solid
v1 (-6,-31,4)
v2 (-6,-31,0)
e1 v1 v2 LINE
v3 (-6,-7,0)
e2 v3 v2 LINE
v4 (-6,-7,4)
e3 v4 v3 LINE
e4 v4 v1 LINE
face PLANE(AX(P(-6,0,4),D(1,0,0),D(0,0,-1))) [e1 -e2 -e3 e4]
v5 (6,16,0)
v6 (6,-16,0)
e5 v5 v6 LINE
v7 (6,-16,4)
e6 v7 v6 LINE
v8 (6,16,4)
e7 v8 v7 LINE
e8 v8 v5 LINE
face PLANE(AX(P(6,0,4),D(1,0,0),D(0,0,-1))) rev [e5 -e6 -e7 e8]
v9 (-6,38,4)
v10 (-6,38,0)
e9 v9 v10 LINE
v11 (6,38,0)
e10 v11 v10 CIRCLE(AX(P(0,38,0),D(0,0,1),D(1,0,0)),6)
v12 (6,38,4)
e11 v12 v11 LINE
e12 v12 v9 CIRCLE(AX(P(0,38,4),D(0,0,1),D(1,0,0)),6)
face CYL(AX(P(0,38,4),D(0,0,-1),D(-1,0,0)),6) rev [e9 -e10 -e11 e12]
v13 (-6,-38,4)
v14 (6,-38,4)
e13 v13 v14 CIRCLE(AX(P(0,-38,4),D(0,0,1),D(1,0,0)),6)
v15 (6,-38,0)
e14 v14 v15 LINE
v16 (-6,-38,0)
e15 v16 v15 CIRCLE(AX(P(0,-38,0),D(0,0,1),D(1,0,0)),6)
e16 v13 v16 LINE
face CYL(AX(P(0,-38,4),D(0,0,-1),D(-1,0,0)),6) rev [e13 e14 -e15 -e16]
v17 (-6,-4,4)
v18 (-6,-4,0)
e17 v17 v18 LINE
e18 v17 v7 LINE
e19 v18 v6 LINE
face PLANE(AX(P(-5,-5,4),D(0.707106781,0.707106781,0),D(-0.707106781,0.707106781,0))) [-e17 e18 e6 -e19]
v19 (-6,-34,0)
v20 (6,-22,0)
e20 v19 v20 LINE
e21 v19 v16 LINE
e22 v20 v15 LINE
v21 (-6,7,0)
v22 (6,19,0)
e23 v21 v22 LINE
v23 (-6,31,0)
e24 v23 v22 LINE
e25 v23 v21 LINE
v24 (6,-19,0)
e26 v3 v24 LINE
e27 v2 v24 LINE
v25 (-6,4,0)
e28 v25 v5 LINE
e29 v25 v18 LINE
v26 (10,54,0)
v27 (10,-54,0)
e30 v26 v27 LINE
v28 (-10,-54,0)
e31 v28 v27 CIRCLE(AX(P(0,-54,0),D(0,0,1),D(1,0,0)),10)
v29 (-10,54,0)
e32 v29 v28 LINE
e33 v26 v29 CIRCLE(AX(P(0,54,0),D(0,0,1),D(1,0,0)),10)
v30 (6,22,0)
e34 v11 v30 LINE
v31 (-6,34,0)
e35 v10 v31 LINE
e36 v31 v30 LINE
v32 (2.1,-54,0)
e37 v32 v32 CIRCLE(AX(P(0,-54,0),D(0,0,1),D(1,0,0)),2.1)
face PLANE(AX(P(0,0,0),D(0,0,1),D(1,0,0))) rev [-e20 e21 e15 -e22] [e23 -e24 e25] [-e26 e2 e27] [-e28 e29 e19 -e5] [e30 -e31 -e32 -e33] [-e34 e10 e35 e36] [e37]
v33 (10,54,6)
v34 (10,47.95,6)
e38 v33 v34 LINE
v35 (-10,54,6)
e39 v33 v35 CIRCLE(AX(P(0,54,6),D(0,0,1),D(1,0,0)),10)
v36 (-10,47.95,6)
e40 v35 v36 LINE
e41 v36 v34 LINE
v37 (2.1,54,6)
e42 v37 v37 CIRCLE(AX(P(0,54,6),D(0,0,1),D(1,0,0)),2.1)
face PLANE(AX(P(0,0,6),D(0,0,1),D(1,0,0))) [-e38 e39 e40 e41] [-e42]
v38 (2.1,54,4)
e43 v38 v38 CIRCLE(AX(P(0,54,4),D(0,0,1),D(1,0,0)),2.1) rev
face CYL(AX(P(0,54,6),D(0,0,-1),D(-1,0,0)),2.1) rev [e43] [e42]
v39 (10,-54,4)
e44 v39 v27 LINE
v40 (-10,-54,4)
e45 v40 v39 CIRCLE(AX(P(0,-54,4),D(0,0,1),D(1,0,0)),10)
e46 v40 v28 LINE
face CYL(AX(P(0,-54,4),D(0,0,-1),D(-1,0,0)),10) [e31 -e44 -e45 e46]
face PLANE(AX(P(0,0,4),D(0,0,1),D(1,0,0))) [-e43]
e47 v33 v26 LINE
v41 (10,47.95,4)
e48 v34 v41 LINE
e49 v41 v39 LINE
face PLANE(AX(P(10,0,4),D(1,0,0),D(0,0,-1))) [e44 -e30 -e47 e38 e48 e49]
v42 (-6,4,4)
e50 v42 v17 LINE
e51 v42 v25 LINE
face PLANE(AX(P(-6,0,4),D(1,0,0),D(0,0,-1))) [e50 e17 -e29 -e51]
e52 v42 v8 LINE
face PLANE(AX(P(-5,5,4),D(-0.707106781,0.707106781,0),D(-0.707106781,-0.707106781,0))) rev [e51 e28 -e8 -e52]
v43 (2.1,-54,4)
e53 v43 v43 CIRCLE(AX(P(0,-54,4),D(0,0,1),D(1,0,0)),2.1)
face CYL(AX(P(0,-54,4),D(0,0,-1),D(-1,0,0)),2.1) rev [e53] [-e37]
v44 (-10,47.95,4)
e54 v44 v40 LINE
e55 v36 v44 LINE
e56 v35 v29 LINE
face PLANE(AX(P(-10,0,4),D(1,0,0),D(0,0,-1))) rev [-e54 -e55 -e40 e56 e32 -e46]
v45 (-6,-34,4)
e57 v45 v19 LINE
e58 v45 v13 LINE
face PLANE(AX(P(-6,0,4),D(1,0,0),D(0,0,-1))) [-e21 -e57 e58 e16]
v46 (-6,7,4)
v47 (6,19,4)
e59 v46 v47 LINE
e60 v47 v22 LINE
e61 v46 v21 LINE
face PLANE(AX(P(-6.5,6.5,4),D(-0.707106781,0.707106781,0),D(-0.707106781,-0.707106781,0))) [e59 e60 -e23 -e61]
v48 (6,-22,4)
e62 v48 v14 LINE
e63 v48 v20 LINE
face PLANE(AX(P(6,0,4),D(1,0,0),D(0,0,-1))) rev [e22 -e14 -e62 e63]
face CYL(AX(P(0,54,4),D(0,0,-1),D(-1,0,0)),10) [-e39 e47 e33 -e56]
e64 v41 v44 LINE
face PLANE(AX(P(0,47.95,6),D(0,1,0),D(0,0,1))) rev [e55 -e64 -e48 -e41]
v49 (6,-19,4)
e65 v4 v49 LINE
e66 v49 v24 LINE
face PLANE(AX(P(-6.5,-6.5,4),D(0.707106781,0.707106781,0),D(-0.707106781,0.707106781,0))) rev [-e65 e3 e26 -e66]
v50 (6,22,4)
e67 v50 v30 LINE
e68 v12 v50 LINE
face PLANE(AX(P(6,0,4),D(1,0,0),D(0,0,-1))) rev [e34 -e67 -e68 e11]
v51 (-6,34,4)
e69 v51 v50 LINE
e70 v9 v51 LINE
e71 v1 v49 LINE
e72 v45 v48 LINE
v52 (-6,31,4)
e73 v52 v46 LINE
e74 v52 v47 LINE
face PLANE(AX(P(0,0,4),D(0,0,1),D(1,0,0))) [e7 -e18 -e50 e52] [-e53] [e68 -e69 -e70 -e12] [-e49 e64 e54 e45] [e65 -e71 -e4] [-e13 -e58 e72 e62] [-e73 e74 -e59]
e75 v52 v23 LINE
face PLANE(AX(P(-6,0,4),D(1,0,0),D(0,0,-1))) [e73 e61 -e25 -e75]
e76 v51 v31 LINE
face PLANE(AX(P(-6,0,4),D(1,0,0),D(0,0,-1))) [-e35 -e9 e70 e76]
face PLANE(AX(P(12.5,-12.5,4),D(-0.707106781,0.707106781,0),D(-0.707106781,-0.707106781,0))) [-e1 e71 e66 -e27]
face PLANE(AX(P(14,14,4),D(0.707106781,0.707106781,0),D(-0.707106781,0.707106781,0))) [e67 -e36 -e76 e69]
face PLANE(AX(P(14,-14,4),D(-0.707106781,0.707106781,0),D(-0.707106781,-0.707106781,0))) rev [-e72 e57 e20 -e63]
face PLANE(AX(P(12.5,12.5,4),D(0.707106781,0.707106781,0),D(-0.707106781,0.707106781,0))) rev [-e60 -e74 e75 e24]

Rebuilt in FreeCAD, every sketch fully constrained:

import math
import FreeCAD as App
import Part
import Sketcher
from FreeCAD import Vector
Q = App.Units.Quantity

doc = App.newDocument("Part")
body = doc.addObject("PartDesign::Body", "Body")

# Sketch on XY plane
sketch1 = doc.addObject("Sketcher::SketchObject", "Sketch")
body.addObject(sketch1)
sketch1.AttachmentSupport = (doc.XY_Plane, [""])
sketch1.MapMode = "FlatFace"
sketch1.addGeometry([
    Part.ArcOfCircle(Part.Circle(Vector(0, 54, 0), Vector(0, 0, 1), 10), math.radians(0), math.radians(180)),  # 0
    Part.LineSegment(Vector(-10, 54, 0), Vector(-10, -54, 0)),  # 1
    Part.ArcOfCircle(Part.Circle(Vector(0, -54, 0), Vector(0, 0, 1), 10), math.radians(180), math.radians(360)),  # 2
    Part.LineSegment(Vector(10, -54, 0), Vector(10, 54, 0)),  # 3
    Part.Circle(Vector(0, -54, 0), Vector(0, 0, 1), 2.1),  # 4
    Part.LineSegment(Vector(-6, -34, 0), Vector(6, -22, 0)),  # 5
    Part.LineSegment(Vector(6, -22, 0), Vector(6, -38, 0)),  # 6
    Part.ArcOfCircle(Part.Circle(Vector(0, -38, 0), Vector(0, 0, 1), 6), math.radians(180), math.radians(360)),  # 7
    Part.LineSegment(Vector(-6, -38, 0), Vector(-6, -34, 0)),  # 8
    Part.LineSegment(Vector(6, -19, 0), Vector(-6, -31, 0)),  # 9
    Part.LineSegment(Vector(-6, -31, 0), Vector(-6, -7, 0)),  # 10
    Part.LineSegment(Vector(-6, -7, 0), Vector(6, -19, 0)),  # 11
    Part.LineSegment(Vector(-6, 4, 0), Vector(6, 16, 0)),  # 12
    Part.LineSegment(Vector(6, 16, 0), Vector(6, -16, 0)),  # 13
    Part.LineSegment(Vector(6, -16, 0), Vector(-6, -4, 0)),  # 14
    Part.LineSegment(Vector(-6, -4, 0), Vector(-6, 4, 0)),  # 15
    Part.LineSegment(Vector(6, 19, 0), Vector(-6, 7, 0)),  # 16
    Part.LineSegment(Vector(-6, 7, 0), Vector(-6, 31, 0)),  # 17
    Part.LineSegment(Vector(-6, 31, 0), Vector(6, 19, 0)),  # 18
    Part.ArcOfCircle(Part.Circle(Vector(0, 38, 0), Vector(0, 0, 1), 6), math.radians(0), math.radians(180)),  # 19
    Part.LineSegment(Vector(6, 38, 0), Vector(6, 22, 0)),  # 20
    Part.LineSegment(Vector(6, 22, 0), Vector(-6, 34, 0)),  # 21
    Part.LineSegment(Vector(-6, 34, 0), Vector(-6, 38, 0)),  # 22
], False)
sketch1.addConstraint([
    Sketcher.Constraint("Tangent", 0, 2, 1, 1),
    Sketcher.Constraint("Tangent", 1, 2, 2, 1),
    Sketcher.Constraint("Tangent", 2, 2, 3, 1),
    Sketcher.Constraint("Tangent", 3, 2, 0, 1),
    Sketcher.Constraint("Coincident", 5, 2, 6, 1),
    Sketcher.Constraint("Tangent", 6, 2, 7, 2),
    Sketcher.Constraint("Tangent", 7, 1, 8, 1),
    Sketcher.Constraint("Coincident", 8, 2, 5, 1),
    Sketcher.Constraint("Coincident", 9, 2, 10, 1),
    Sketcher.Constraint("Coincident", 10, 2, 11, 1),
    Sketcher.Constraint("Coincident", 11, 2, 9, 1),
    Sketcher.Constraint("Coincident", 12, 2, 13, 1),
    Sketcher.Constraint("Coincident", 13, 2, 14, 1),
    Sketcher.Constraint("Coincident", 14, 2, 15, 1),
    Sketcher.Constraint("Coincident", 15, 2, 12, 1),
    Sketcher.Constraint("Coincident", 16, 2, 17, 1),
    Sketcher.Constraint("Coincident", 17, 2, 18, 1),
    Sketcher.Constraint("Coincident", 18, 2, 16, 1),
    Sketcher.Constraint("Tangent", 19, 1, 20, 1),
    Sketcher.Constraint("Coincident", 20, 2, 21, 1),
    Sketcher.Constraint("Coincident", 21, 2, 22, 1),
    Sketcher.Constraint("Tangent", 22, 2, 19, 2),
    Sketcher.Constraint("Vertical", 1),
    Sketcher.Constraint("Vertical", 3),
    Sketcher.Constraint("Vertical", 6),
    Sketcher.Constraint("Vertical", 8),
    Sketcher.Constraint("Vertical", 10),
    Sketcher.Constraint("Vertical", 13),
    Sketcher.Constraint("Vertical", 15),
    Sketcher.Constraint("Vertical", 17),
    Sketcher.Constraint("Vertical", 20),
    Sketcher.Constraint("Vertical", 22),
    Sketcher.Constraint("Coincident", 4, 3, 2, 3),
    Sketcher.Constraint("Equal", 7, 19),
    Sketcher.Constraint("Symmetric", 0, 3, 2, 3, -1, 1),
    Sketcher.Constraint("Symmetric", 7, 3, 19, 3, -1, 1),
    Sketcher.Constraint("Symmetric", 10, 2, 16, 2, -1),
    Sketcher.Constraint("Symmetric", 11, 2, 18, 2, -1),
    Sketcher.Constraint("Symmetric", 5, 2, 20, 2, -1),
    Sketcher.Constraint("Parallel", 5, 9),
    Sketcher.Constraint("Perpendicular", 9, 11),
    Sketcher.Constraint("Perpendicular", 11, 12),
    Sketcher.Constraint("Perpendicular", 12, 14),
    Sketcher.Constraint("Perpendicular", 14, 16),
    Sketcher.Constraint("Perpendicular", 16, 18),
    Sketcher.Constraint("Parallel", 18, 21),
    Sketcher.Constraint("Vertical", 8, 2, 9, 2),
    Sketcher.Constraint("Vertical", 6, 2, 11, 2),
    Sketcher.Constraint("Vertical", 11, 2, 12, 2),
    Sketcher.Constraint("Vertical", 10, 2, 14, 2),
    Sketcher.Constraint("Radius", 0, Q("10 mm")),
    Sketcher.Constraint("Radius", 7, Q("6 mm")),
    Sketcher.Constraint("Diameter", 4, Q("4.2 mm")),
    Sketcher.Constraint("DistanceY", 1, 2, 1, 1, Q("108 mm")),
    Sketcher.Constraint("DistanceY", 6, 2, 6, 1, Q("16 mm")),
    Sketcher.Constraint("DistanceY", 13, 2, 13, 1, Q("32 mm")),
    Sketcher.Constraint("DistanceY", 7, 3, -1, 1, Q("38 mm")),
    Sketcher.Constraint("DistanceY", 9, 2, -1, 1, Q("31 mm")),
    Sketcher.Constraint("DistanceY", -1, 1, 12, 2, Q("16 mm")),
])
pad1 = doc.addObject("PartDesign::Pad", "Pad")
body.addObject(pad1)
pad1.Profile = sketch1
pad1.Length = 4

# Sketch on XY plane
sketch2 = doc.addObject("Sketcher::SketchObject", "Sketch001")
body.addObject(sketch2)
sketch2.AttachmentSupport = (doc.XY_Plane, [""])
sketch2.MapMode = "FlatFace"
sketch2.addGeometry([
    Part.LineSegment(Vector(10, 48, 0), Vector(10, 54, 0)),  # 0
    Part.ArcOfCircle(Part.Circle(Vector(0, 54, 0), Vector(0, 0, 1), 10), math.radians(0), math.radians(180)),  # 1
    Part.LineSegment(Vector(-10, 54, 0), Vector(-10, 48, 0)),  # 2
    Part.LineSegment(Vector(-10, 48, 0), Vector(10, 48, 0)),  # 3
    Part.Circle(Vector(0, 54, 0), Vector(0, 0, 1), 2.1),  # 4
], False)
sketch2.addConstraint([
    Sketcher.Constraint("Tangent", 0, 2, 1, 1),
    Sketcher.Constraint("Tangent", 1, 2, 2, 1),
    Sketcher.Constraint("Coincident", 2, 2, 3, 1),
    Sketcher.Constraint("Coincident", 3, 2, 0, 1),
    Sketcher.Constraint("Vertical", 0),
    Sketcher.Constraint("Vertical", 2),
    Sketcher.Constraint("Horizontal", 3),
    Sketcher.Constraint("Coincident", 4, 3, 1, 3),
    Sketcher.Constraint("PointOnObject", 1, 3, -2),
    Sketcher.Constraint("Radius", 1, Q("10 mm")),
    Sketcher.Constraint("Diameter", 4, Q("4.2 mm")),
    Sketcher.Constraint("DistanceY", -1, 1, 1, 3, Q("54 mm")),
    Sketcher.Constraint("DistanceY", 0, 1, 0, 2, Q("6.05 mm")),
])
pad2 = doc.addObject("PartDesign::Pad", "Pad001")
body.addObject(pad2)
pad2.Profile = sketch2
pad2.Length = 6

doc.recompute()
